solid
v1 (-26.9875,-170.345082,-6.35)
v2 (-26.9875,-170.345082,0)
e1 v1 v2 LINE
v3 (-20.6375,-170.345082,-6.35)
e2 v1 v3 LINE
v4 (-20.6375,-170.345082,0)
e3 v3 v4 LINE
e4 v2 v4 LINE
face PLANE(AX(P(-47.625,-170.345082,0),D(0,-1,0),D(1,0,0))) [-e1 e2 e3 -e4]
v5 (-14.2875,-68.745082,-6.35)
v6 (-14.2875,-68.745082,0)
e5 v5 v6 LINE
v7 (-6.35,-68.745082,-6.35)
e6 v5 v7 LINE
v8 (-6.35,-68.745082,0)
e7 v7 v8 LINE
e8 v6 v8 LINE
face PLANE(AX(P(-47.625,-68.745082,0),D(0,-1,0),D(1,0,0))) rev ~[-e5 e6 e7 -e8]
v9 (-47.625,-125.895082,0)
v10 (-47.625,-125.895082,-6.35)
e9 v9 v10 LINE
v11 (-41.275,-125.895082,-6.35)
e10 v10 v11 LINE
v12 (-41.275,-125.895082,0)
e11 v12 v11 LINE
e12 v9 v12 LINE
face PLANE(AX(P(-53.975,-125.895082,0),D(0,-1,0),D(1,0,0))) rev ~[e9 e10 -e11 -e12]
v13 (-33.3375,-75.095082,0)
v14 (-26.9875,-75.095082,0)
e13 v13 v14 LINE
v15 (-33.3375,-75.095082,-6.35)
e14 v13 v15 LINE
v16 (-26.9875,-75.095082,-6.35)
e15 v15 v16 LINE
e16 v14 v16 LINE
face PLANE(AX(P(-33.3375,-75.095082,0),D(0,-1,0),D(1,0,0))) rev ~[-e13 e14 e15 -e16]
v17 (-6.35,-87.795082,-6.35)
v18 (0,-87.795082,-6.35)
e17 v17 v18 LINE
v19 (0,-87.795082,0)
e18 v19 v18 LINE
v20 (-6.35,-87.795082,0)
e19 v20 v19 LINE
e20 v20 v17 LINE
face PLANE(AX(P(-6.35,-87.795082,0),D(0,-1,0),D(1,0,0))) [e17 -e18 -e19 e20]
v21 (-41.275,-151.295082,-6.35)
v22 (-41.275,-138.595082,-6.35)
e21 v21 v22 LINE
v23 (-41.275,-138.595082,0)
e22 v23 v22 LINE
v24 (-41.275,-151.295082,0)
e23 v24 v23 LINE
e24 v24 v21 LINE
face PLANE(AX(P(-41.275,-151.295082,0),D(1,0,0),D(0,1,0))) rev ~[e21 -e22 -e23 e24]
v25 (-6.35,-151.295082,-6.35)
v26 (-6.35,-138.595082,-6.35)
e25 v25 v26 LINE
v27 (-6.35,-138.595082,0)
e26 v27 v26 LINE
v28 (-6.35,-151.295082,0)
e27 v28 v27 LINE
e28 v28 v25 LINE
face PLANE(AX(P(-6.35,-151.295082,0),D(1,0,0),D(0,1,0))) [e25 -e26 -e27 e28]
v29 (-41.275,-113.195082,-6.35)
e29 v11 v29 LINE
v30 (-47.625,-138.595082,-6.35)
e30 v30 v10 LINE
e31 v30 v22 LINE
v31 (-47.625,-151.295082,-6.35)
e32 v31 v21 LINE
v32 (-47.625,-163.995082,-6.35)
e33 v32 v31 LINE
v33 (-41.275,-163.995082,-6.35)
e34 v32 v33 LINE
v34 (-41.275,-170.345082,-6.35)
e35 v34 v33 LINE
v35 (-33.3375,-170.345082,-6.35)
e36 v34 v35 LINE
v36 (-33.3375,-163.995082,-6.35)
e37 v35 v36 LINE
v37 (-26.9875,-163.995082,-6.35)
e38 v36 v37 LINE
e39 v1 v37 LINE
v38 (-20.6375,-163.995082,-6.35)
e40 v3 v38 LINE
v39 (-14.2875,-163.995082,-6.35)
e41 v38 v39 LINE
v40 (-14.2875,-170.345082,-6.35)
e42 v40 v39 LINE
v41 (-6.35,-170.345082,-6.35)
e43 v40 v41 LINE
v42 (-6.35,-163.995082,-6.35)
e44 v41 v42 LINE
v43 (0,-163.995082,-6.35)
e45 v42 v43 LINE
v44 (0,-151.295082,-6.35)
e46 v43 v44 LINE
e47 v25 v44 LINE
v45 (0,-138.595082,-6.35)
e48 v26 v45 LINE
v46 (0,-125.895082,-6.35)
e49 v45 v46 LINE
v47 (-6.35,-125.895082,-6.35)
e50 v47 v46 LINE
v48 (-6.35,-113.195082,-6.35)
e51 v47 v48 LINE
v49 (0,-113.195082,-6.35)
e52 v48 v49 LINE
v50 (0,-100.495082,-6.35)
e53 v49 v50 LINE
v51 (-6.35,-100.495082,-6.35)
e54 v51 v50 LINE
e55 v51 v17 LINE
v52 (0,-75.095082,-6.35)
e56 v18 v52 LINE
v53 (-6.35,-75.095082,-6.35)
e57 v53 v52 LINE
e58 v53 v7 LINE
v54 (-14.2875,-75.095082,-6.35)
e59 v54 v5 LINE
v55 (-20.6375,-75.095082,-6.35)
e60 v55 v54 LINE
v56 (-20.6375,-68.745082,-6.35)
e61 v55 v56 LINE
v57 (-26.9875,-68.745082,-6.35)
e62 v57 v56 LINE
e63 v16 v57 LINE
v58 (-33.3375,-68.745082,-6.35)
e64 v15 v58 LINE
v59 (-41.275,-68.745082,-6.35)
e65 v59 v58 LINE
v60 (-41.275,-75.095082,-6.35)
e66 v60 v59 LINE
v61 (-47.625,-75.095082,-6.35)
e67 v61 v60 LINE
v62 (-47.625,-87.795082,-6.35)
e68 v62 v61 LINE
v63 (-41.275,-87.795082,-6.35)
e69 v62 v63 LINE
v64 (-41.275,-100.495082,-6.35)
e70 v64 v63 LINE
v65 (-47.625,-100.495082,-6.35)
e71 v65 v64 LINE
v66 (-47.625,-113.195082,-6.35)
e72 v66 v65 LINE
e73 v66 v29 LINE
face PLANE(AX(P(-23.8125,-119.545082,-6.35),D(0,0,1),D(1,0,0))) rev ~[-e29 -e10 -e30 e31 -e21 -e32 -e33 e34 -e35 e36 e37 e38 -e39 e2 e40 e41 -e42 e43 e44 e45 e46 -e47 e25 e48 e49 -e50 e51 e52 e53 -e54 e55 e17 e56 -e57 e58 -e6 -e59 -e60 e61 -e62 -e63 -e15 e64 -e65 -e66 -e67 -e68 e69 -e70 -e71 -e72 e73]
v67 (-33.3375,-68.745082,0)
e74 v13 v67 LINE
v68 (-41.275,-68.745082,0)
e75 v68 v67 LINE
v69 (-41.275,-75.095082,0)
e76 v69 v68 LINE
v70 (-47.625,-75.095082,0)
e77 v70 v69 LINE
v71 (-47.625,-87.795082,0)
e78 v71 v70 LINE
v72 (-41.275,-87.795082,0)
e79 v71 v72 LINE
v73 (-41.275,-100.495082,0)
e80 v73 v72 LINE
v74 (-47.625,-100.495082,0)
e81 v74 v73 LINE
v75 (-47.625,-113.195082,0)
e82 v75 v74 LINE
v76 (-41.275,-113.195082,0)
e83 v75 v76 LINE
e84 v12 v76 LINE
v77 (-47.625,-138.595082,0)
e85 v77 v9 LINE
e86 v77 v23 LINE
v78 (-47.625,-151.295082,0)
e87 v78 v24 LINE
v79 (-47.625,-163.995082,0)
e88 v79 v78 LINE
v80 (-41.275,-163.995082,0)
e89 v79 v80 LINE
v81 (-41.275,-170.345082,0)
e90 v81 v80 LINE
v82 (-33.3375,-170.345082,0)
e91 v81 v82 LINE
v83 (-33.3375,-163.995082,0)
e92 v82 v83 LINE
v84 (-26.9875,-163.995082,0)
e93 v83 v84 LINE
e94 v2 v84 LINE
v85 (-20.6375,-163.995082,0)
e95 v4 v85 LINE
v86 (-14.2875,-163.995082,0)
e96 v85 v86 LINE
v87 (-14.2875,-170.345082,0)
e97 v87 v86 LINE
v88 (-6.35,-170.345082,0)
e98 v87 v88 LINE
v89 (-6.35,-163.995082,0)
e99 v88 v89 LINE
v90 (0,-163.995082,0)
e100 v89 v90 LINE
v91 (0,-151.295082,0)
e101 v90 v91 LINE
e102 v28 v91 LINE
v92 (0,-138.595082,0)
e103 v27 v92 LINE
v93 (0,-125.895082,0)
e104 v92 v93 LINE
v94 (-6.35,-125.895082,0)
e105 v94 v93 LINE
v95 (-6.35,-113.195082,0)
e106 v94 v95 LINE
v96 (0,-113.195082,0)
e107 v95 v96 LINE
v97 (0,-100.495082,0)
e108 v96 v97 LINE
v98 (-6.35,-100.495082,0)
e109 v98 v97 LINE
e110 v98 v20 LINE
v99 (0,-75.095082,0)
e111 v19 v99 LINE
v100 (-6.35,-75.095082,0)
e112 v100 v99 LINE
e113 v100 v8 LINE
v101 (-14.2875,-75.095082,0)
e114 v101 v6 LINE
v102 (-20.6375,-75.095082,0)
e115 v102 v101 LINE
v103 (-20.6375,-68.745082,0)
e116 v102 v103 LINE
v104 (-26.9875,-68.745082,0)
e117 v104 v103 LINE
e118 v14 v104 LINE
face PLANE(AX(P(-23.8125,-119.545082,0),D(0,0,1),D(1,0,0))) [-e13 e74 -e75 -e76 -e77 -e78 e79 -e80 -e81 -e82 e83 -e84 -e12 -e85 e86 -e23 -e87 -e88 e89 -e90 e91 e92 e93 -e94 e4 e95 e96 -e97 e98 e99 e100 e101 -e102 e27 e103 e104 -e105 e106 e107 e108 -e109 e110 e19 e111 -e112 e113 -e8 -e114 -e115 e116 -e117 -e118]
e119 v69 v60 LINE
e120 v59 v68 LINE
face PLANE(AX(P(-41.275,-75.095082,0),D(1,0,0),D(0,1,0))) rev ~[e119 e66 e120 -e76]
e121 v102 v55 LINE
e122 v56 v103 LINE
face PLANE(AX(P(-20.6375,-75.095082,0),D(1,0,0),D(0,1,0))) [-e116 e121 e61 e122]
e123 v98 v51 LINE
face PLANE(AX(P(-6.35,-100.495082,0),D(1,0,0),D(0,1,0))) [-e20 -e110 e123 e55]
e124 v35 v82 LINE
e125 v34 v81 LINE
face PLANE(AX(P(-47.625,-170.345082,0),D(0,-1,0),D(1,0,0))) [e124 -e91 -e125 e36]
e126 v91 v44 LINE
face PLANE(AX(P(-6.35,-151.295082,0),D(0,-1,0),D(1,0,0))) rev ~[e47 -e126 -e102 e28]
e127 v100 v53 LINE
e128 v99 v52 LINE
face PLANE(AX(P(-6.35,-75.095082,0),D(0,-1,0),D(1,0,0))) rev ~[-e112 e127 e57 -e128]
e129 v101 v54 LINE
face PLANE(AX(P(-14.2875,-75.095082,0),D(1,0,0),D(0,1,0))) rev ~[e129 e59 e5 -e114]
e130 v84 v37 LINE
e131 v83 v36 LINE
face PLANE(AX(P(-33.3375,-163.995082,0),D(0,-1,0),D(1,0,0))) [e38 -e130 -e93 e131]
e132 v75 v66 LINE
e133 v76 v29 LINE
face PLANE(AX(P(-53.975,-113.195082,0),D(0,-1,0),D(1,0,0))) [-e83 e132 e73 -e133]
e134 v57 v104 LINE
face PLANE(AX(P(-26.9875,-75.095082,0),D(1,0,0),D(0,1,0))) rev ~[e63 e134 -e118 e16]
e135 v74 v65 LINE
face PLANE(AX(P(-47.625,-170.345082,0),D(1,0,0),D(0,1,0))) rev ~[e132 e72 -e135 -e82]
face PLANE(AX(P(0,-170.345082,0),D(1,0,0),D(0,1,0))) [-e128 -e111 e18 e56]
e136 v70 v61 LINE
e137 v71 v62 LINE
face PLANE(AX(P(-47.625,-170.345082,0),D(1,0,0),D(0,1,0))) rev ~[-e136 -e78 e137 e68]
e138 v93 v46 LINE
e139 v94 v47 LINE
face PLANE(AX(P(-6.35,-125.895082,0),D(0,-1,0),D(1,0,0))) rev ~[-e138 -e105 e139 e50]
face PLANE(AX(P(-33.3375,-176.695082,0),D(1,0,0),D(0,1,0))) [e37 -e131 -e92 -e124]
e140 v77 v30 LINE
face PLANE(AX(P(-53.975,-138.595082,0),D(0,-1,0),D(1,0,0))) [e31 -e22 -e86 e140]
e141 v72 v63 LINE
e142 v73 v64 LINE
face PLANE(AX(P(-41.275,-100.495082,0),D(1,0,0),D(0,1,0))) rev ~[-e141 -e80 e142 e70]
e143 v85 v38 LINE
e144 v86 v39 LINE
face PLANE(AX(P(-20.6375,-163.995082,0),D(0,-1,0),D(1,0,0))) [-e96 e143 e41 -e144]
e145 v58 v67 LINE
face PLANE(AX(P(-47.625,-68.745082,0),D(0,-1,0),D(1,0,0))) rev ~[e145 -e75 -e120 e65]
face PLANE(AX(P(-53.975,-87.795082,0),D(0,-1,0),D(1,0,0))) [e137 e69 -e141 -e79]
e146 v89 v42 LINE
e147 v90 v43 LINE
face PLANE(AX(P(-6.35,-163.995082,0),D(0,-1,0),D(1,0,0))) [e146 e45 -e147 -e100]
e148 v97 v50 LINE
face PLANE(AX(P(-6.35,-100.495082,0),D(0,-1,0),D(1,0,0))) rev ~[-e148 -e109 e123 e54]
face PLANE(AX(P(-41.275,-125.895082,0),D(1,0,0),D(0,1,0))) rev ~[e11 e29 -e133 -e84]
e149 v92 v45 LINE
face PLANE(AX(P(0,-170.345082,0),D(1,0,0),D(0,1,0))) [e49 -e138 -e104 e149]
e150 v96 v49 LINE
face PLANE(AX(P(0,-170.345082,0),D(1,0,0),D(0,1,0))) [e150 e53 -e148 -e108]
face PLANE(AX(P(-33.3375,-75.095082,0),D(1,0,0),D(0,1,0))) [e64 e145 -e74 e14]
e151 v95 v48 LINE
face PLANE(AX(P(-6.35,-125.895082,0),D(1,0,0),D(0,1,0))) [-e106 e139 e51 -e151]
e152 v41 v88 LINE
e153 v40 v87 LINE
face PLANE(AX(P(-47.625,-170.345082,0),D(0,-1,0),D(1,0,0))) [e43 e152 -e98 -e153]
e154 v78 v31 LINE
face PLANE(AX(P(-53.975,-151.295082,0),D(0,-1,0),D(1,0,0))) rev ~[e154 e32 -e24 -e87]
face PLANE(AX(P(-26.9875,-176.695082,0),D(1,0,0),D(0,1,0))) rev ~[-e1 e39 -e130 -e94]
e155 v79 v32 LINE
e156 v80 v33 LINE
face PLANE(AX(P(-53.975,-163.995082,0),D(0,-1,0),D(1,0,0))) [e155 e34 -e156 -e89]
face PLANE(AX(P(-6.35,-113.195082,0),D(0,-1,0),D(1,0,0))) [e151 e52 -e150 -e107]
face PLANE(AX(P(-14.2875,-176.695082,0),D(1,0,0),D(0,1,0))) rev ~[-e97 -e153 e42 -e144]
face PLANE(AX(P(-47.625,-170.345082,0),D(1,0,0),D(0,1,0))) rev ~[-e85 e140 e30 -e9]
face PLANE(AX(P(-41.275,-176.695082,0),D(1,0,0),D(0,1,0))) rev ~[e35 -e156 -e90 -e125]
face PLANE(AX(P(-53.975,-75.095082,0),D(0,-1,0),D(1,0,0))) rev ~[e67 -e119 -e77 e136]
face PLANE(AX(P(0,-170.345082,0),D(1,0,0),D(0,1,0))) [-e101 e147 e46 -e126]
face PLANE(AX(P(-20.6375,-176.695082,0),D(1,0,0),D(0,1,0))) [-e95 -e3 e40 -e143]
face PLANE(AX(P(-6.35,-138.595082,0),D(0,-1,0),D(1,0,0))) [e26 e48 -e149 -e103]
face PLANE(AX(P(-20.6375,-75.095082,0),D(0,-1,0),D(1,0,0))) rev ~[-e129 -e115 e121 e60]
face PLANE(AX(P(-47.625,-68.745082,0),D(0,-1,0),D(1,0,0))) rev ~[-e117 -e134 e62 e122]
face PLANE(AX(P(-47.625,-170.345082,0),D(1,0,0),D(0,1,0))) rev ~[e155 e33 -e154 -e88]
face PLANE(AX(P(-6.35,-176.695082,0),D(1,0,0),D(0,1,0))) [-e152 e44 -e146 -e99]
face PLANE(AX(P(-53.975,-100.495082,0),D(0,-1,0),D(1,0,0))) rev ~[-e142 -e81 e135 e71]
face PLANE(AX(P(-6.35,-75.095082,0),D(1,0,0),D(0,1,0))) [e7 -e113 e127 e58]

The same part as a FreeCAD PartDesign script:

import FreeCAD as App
import Part
import Sketcher

V = App.Vector
Q = App.Units.Quantity

doc = App.newDocument("Part")
body = doc.addObject("PartDesign::Body", "Body")

sketch1 = body.newObject("Sketcher::SketchObject", "Sketch")
sketch1.AttachmentSupport = (doc.getObject("XY_Plane"), [""])
sketch1.MapMode = "FlatFace"
sketch1.addGeometry([
    Part.LineSegment(V(-48, -69, 0), V(-48, -170, 0)),
    Part.LineSegment(V(-48, -170, 0), V(0, -170, 0)),
    Part.LineSegment(V(0, -170, 0), V(0, -69, 0)),
    Part.LineSegment(V(0, -69, 0), V(-48, -69, 0)),
], False)
sketch1.addConstraint([
    Sketcher.Constraint("Coincident", 0, 2, 1, 1),
    Sketcher.Constraint("Coincident", 1, 2, 2, 1),
    Sketcher.Constraint("Coincident", 2, 2, 3, 1),
    Sketcher.Constraint("Coincident", 3, 2, 0, 1),
    Sketcher.Constraint("Vertical", 0),
    Sketcher.Constraint("Horizontal", 1),
    Sketcher.Constraint("Vertical", 2),
    Sketcher.Constraint("Horizontal", 3),
    Sketcher.Constraint("PointOnObject", 1, 2, -2),
    Sketcher.Constraint("DistanceY", 0, 2, 0, 1, Q("4 in")),
    Sketcher.Constraint("DistanceX", 1, 1, 1, 2, Q("1.875 in")),
    Sketcher.Constraint("DistanceY", 0, 2, -1, 1, 170.345082),
])
pad1 = body.newObject("PartDesign::Pad", "Pad")
pad1.Profile = sketch1
pad1.Length = Q("0.25 in")
pad1.Reversed = True

sketch2 = body.newObject("Sketcher::SketchObject", "Sketch001")
sketch2.AttachmentSupport = (doc.getObject("XY_Plane"), [""])
sketch2.MapMode = "FlatFace"
sketch2.addGeometry([
    Part.LineSegment(V(-6, -113, 0), V(-6, -126, 0)),
    Part.LineSegment(V(-6, -126, 0), V(6, -126, 0)),
    Part.LineSegment(V(6, -126, 0), V(6, -113, 0)),
    Part.LineSegment(V(6, -113, 0), V(-6, -113, 0)),
    Part.LineSegment(V(-54, -113, 0), V(-54, -126, 0)),
    Part.LineSegment(V(-54, -126, 0), V(-41, -126, 0)),
    Part.LineSegment(V(-41, -126, 0), V(-41, -113, 0)),
    Part.LineSegment(V(-41, -113, 0), V(-54, -113, 0)),
], False)
sketch2.addConstraint([
    Sketcher.Constraint("Coincident", 0, 2, 1, 1),
    Sketcher.Constraint("Coincident", 1, 2, 2, 1),
    Sketcher.Constraint("Coincident", 2, 2, 3, 1),
    Sketcher.Constraint("Coincident", 3, 2, 0, 1),
    Sketcher.Constraint("Coincident", 4, 2, 5, 1),
    Sketcher.Constraint("Coincident", 5, 2, 6, 1),
    Sketcher.Constraint("Coincident", 6, 2, 7, 1),
    Sketcher.Constraint("Coincident", 7, 2, 4, 1),
    Sketcher.Constraint("Vertical", 0),
    Sketcher.Constraint("Horizontal", 1),
    Sketcher.Constraint("Vertical", 2),
    Sketcher.Constraint("Horizontal", 3),
    Sketcher.Constraint("Vertical", 4),
    Sketcher.Constraint("Horizontal", 5),
    Sketcher.Constraint("Vertical", 6),
    Sketcher.Constraint("Horizontal", 7),
    Sketcher.Constraint("Horizontal", 1, 2, 4, 2),
    Sketcher.Constraint("Horizontal", 3, 2, 6, 2),
    Sketcher.Constraint("Equal", 3, 5),
    Sketcher.Constraint("Equal", 7, 0),
    Sketcher.Constraint("DistanceX", 1, 1, 1, 2, Q("0.5 in")),
    Sketcher.Constraint("DistanceX", 0, 2, -1, 1, Q("0.25 in")),
    Sketcher.Constraint("DistanceX", 4, 2, -1, 1, Q("2.125 in")),
    Sketcher.Constraint("DistanceY", 0, 2, -1, 1, 125.895082),
])
pocket1 = body.newObject("PartDesign::Pocket", "Pocket")
pocket1.Profile = sketch2
pocket1.Type = "ThroughAll"
doc.recompute()

linearpattern = body.newObject("PartDesign::LinearPattern", "LinearPattern")
linearpattern.Originals = [pocket1]
linearpattern.Direction = (doc.getObject("Y_Axis"), [""])
linearpattern.Mode = "offset"
linearpattern.Offset = Q("1 in")
linearpattern.Occurrences = 3
linearpattern.Reversed = True
body.Tip = linearpattern
doc.recompute()

linearpattern2 = body.newObject("PartDesign::LinearPattern", "LinearPattern001")
linearpattern2.Originals = [pocket1]
linearpattern2.Direction = (doc.getObject("Y_Axis"), [""])
linearpattern2.Mode = "offset"
linearpattern2.Offset = Q("1 in")
linearpattern2.Occurrences = 3
body.Tip = linearpattern2

sketch3 = body.newObject("Sketcher::SketchObject", "Sketch002")
sketch3.AttachmentSupport = (doc.getObject("XY_Plane"), [""])
sketch3.MapMode = "FlatFace"
sketch3.addGeometry([
    Part.LineSegment(V(-21, -62, 0), V(-21, -75, 0)),
    Part.LineSegment(V(-21, -75, 0), V(-14, -75, 0)),
    Part.LineSegment(V(-14, -75, 0), V(-14, -62, 0)),
    Part.LineSegment(V(-14, -62, 0), V(-21, -62, 0)),
    Part.LineSegment(V(-33, -62, 0), V(-33, -75, 0)),
    Part.LineSegment(V(-33, -75, 0), V(-27, -75, 0)),
    Part.LineSegment(V(-27, -75, 0), V(-27, -62, 0)),
    Part.LineSegment(V(-27, -62, 0), V(-33, -62, 0)),
    Part.LineSegment(V(-33, -164, 0), V(-33, -177, 0)),
    Part.LineSegment(V(-33, -177, 0), V(-27, -177, 0)),
    Part.LineSegment(V(-27, -177, 0), V(-27, -164, 0)),
    Part.LineSegment(V(-27, -164, 0), V(-33, -164, 0)),
    Part.LineSegment(V(-21, -164, 0), V(-21, -177, 0)),
    Part.LineSegment(V(-21, -177, 0), V(-14, -177, 0)),
    Part.LineSegment(V(-14, -177, 0), V(-14, -164, 0)),
    Part.LineSegment(V(-14, -164, 0), V(-21, -164, 0)),
], False)
sketch3.addConstraint([
    Sketcher.Constraint("Coincident", 0, 2, 1, 1),
    Sketcher.Constraint("Coincident", 1, 2, 2, 1),
    Sketcher.Constraint("Coincident", 2, 2, 3, 1),
    Sketcher.Constraint("Coincident", 3, 2, 0, 1),
    Sketcher.Constraint("Coincident", 4, 2, 5, 1),
    Sketcher.Constraint("Coincident", 5, 2, 6, 1),
    Sketcher.Constraint("Coincident", 6, 2, 7, 1),
    Sketcher.Constraint("Coincident", 7, 2, 4, 1),
    Sketcher.Constraint("Coincident", 8, 2, 9, 1),
    Sketcher.Constraint("Coincident", 9, 2, 10, 1),
    Sketcher.Constraint("Coincident", 10, 2, 11, 1),
    Sketcher.Constraint("Coincident", 11, 2, 8, 1),
    Sketcher.Constraint("Coincident", 12, 2, 13, 1),
    Sketcher.Constraint("Coincident", 13, 2, 14, 1),
    Sketcher.Constraint("Coincident", 14, 2, 15, 1),
    Sketcher.Constraint("Coincident", 15, 2, 12, 1),
    Sketcher.Constraint("Vertical", 0),
    Sketcher.Constraint("Horizontal", 1),
    Sketcher.Constraint("Vertical", 2),
    Sketcher.Constraint("Horizontal", 3),
    Sketcher.Constraint("Vertical", 4),
    Sketcher.Constraint("Horizontal", 5),
    Sketcher.Constraint("Vertical", 6),
    Sketcher.Constraint("Horizontal", 7),
    Sketcher.Constraint("Vertical", 8),
    Sketcher.Constraint("Horizontal", 9),
    Sketcher.Constraint("Vertical", 10),
    Sketcher.Constraint("Horizontal", 11),
    Sketcher.Constraint("Vertical", 12),
    Sketcher.Constraint("Horizontal", 13),
    Sketcher.Constraint("Vertical", 14),
    Sketcher.Constraint("Horizontal", 15),
    Sketcher.Constraint("Horizontal", 1, 2, 4, 2),
    Sketcher.Constraint("Horizontal", 3, 2, 6, 2),
    Sketcher.Constraint("Horizontal", 9, 2, 12, 2),
    Sketcher.Constraint("Horizontal", 11, 2, 14, 2),
    Sketcher.Constraint("Vertical", 7, 2, 8, 2),
    Sketcher.Constraint("Vertical", 6, 2, 9, 2),
    Sketcher.Constraint("Vertical", 3, 2, 12, 2),
    Sketcher.Constraint("Vertical", 2, 2, 13, 2),
    Sketcher.Constraint("Equal", 3, 5),
    Sketcher.Constraint("Equal", 6, 8),
    Sketcher.Constraint("DistanceY", 0, 2, 0, 1, Q("0.5 in")),
    Sketcher.Constraint("DistanceY", 8, 2, 4, 2, Q("4 in")),
    Sketcher.Constraint("DistanceX", 1, 1, 1, 2, Q("0.25 in")),
    Sketcher.Constraint("DistanceX", 4, 2, 0, 2, Q("0.5 in")),
    Sketcher.Constraint("DistanceX", 0, 2, -1, 1, Q("0.8125 in")),
    Sketcher.Constraint("DistanceY", 0, 2, -1, 1, 75.095082),
])
pocket2 = body.newObject("PartDesign::Pocket", "Pocket001")
pocket2.Profile = sketch3
pocket2.Type = "ThroughAll"

doc.recompute()
